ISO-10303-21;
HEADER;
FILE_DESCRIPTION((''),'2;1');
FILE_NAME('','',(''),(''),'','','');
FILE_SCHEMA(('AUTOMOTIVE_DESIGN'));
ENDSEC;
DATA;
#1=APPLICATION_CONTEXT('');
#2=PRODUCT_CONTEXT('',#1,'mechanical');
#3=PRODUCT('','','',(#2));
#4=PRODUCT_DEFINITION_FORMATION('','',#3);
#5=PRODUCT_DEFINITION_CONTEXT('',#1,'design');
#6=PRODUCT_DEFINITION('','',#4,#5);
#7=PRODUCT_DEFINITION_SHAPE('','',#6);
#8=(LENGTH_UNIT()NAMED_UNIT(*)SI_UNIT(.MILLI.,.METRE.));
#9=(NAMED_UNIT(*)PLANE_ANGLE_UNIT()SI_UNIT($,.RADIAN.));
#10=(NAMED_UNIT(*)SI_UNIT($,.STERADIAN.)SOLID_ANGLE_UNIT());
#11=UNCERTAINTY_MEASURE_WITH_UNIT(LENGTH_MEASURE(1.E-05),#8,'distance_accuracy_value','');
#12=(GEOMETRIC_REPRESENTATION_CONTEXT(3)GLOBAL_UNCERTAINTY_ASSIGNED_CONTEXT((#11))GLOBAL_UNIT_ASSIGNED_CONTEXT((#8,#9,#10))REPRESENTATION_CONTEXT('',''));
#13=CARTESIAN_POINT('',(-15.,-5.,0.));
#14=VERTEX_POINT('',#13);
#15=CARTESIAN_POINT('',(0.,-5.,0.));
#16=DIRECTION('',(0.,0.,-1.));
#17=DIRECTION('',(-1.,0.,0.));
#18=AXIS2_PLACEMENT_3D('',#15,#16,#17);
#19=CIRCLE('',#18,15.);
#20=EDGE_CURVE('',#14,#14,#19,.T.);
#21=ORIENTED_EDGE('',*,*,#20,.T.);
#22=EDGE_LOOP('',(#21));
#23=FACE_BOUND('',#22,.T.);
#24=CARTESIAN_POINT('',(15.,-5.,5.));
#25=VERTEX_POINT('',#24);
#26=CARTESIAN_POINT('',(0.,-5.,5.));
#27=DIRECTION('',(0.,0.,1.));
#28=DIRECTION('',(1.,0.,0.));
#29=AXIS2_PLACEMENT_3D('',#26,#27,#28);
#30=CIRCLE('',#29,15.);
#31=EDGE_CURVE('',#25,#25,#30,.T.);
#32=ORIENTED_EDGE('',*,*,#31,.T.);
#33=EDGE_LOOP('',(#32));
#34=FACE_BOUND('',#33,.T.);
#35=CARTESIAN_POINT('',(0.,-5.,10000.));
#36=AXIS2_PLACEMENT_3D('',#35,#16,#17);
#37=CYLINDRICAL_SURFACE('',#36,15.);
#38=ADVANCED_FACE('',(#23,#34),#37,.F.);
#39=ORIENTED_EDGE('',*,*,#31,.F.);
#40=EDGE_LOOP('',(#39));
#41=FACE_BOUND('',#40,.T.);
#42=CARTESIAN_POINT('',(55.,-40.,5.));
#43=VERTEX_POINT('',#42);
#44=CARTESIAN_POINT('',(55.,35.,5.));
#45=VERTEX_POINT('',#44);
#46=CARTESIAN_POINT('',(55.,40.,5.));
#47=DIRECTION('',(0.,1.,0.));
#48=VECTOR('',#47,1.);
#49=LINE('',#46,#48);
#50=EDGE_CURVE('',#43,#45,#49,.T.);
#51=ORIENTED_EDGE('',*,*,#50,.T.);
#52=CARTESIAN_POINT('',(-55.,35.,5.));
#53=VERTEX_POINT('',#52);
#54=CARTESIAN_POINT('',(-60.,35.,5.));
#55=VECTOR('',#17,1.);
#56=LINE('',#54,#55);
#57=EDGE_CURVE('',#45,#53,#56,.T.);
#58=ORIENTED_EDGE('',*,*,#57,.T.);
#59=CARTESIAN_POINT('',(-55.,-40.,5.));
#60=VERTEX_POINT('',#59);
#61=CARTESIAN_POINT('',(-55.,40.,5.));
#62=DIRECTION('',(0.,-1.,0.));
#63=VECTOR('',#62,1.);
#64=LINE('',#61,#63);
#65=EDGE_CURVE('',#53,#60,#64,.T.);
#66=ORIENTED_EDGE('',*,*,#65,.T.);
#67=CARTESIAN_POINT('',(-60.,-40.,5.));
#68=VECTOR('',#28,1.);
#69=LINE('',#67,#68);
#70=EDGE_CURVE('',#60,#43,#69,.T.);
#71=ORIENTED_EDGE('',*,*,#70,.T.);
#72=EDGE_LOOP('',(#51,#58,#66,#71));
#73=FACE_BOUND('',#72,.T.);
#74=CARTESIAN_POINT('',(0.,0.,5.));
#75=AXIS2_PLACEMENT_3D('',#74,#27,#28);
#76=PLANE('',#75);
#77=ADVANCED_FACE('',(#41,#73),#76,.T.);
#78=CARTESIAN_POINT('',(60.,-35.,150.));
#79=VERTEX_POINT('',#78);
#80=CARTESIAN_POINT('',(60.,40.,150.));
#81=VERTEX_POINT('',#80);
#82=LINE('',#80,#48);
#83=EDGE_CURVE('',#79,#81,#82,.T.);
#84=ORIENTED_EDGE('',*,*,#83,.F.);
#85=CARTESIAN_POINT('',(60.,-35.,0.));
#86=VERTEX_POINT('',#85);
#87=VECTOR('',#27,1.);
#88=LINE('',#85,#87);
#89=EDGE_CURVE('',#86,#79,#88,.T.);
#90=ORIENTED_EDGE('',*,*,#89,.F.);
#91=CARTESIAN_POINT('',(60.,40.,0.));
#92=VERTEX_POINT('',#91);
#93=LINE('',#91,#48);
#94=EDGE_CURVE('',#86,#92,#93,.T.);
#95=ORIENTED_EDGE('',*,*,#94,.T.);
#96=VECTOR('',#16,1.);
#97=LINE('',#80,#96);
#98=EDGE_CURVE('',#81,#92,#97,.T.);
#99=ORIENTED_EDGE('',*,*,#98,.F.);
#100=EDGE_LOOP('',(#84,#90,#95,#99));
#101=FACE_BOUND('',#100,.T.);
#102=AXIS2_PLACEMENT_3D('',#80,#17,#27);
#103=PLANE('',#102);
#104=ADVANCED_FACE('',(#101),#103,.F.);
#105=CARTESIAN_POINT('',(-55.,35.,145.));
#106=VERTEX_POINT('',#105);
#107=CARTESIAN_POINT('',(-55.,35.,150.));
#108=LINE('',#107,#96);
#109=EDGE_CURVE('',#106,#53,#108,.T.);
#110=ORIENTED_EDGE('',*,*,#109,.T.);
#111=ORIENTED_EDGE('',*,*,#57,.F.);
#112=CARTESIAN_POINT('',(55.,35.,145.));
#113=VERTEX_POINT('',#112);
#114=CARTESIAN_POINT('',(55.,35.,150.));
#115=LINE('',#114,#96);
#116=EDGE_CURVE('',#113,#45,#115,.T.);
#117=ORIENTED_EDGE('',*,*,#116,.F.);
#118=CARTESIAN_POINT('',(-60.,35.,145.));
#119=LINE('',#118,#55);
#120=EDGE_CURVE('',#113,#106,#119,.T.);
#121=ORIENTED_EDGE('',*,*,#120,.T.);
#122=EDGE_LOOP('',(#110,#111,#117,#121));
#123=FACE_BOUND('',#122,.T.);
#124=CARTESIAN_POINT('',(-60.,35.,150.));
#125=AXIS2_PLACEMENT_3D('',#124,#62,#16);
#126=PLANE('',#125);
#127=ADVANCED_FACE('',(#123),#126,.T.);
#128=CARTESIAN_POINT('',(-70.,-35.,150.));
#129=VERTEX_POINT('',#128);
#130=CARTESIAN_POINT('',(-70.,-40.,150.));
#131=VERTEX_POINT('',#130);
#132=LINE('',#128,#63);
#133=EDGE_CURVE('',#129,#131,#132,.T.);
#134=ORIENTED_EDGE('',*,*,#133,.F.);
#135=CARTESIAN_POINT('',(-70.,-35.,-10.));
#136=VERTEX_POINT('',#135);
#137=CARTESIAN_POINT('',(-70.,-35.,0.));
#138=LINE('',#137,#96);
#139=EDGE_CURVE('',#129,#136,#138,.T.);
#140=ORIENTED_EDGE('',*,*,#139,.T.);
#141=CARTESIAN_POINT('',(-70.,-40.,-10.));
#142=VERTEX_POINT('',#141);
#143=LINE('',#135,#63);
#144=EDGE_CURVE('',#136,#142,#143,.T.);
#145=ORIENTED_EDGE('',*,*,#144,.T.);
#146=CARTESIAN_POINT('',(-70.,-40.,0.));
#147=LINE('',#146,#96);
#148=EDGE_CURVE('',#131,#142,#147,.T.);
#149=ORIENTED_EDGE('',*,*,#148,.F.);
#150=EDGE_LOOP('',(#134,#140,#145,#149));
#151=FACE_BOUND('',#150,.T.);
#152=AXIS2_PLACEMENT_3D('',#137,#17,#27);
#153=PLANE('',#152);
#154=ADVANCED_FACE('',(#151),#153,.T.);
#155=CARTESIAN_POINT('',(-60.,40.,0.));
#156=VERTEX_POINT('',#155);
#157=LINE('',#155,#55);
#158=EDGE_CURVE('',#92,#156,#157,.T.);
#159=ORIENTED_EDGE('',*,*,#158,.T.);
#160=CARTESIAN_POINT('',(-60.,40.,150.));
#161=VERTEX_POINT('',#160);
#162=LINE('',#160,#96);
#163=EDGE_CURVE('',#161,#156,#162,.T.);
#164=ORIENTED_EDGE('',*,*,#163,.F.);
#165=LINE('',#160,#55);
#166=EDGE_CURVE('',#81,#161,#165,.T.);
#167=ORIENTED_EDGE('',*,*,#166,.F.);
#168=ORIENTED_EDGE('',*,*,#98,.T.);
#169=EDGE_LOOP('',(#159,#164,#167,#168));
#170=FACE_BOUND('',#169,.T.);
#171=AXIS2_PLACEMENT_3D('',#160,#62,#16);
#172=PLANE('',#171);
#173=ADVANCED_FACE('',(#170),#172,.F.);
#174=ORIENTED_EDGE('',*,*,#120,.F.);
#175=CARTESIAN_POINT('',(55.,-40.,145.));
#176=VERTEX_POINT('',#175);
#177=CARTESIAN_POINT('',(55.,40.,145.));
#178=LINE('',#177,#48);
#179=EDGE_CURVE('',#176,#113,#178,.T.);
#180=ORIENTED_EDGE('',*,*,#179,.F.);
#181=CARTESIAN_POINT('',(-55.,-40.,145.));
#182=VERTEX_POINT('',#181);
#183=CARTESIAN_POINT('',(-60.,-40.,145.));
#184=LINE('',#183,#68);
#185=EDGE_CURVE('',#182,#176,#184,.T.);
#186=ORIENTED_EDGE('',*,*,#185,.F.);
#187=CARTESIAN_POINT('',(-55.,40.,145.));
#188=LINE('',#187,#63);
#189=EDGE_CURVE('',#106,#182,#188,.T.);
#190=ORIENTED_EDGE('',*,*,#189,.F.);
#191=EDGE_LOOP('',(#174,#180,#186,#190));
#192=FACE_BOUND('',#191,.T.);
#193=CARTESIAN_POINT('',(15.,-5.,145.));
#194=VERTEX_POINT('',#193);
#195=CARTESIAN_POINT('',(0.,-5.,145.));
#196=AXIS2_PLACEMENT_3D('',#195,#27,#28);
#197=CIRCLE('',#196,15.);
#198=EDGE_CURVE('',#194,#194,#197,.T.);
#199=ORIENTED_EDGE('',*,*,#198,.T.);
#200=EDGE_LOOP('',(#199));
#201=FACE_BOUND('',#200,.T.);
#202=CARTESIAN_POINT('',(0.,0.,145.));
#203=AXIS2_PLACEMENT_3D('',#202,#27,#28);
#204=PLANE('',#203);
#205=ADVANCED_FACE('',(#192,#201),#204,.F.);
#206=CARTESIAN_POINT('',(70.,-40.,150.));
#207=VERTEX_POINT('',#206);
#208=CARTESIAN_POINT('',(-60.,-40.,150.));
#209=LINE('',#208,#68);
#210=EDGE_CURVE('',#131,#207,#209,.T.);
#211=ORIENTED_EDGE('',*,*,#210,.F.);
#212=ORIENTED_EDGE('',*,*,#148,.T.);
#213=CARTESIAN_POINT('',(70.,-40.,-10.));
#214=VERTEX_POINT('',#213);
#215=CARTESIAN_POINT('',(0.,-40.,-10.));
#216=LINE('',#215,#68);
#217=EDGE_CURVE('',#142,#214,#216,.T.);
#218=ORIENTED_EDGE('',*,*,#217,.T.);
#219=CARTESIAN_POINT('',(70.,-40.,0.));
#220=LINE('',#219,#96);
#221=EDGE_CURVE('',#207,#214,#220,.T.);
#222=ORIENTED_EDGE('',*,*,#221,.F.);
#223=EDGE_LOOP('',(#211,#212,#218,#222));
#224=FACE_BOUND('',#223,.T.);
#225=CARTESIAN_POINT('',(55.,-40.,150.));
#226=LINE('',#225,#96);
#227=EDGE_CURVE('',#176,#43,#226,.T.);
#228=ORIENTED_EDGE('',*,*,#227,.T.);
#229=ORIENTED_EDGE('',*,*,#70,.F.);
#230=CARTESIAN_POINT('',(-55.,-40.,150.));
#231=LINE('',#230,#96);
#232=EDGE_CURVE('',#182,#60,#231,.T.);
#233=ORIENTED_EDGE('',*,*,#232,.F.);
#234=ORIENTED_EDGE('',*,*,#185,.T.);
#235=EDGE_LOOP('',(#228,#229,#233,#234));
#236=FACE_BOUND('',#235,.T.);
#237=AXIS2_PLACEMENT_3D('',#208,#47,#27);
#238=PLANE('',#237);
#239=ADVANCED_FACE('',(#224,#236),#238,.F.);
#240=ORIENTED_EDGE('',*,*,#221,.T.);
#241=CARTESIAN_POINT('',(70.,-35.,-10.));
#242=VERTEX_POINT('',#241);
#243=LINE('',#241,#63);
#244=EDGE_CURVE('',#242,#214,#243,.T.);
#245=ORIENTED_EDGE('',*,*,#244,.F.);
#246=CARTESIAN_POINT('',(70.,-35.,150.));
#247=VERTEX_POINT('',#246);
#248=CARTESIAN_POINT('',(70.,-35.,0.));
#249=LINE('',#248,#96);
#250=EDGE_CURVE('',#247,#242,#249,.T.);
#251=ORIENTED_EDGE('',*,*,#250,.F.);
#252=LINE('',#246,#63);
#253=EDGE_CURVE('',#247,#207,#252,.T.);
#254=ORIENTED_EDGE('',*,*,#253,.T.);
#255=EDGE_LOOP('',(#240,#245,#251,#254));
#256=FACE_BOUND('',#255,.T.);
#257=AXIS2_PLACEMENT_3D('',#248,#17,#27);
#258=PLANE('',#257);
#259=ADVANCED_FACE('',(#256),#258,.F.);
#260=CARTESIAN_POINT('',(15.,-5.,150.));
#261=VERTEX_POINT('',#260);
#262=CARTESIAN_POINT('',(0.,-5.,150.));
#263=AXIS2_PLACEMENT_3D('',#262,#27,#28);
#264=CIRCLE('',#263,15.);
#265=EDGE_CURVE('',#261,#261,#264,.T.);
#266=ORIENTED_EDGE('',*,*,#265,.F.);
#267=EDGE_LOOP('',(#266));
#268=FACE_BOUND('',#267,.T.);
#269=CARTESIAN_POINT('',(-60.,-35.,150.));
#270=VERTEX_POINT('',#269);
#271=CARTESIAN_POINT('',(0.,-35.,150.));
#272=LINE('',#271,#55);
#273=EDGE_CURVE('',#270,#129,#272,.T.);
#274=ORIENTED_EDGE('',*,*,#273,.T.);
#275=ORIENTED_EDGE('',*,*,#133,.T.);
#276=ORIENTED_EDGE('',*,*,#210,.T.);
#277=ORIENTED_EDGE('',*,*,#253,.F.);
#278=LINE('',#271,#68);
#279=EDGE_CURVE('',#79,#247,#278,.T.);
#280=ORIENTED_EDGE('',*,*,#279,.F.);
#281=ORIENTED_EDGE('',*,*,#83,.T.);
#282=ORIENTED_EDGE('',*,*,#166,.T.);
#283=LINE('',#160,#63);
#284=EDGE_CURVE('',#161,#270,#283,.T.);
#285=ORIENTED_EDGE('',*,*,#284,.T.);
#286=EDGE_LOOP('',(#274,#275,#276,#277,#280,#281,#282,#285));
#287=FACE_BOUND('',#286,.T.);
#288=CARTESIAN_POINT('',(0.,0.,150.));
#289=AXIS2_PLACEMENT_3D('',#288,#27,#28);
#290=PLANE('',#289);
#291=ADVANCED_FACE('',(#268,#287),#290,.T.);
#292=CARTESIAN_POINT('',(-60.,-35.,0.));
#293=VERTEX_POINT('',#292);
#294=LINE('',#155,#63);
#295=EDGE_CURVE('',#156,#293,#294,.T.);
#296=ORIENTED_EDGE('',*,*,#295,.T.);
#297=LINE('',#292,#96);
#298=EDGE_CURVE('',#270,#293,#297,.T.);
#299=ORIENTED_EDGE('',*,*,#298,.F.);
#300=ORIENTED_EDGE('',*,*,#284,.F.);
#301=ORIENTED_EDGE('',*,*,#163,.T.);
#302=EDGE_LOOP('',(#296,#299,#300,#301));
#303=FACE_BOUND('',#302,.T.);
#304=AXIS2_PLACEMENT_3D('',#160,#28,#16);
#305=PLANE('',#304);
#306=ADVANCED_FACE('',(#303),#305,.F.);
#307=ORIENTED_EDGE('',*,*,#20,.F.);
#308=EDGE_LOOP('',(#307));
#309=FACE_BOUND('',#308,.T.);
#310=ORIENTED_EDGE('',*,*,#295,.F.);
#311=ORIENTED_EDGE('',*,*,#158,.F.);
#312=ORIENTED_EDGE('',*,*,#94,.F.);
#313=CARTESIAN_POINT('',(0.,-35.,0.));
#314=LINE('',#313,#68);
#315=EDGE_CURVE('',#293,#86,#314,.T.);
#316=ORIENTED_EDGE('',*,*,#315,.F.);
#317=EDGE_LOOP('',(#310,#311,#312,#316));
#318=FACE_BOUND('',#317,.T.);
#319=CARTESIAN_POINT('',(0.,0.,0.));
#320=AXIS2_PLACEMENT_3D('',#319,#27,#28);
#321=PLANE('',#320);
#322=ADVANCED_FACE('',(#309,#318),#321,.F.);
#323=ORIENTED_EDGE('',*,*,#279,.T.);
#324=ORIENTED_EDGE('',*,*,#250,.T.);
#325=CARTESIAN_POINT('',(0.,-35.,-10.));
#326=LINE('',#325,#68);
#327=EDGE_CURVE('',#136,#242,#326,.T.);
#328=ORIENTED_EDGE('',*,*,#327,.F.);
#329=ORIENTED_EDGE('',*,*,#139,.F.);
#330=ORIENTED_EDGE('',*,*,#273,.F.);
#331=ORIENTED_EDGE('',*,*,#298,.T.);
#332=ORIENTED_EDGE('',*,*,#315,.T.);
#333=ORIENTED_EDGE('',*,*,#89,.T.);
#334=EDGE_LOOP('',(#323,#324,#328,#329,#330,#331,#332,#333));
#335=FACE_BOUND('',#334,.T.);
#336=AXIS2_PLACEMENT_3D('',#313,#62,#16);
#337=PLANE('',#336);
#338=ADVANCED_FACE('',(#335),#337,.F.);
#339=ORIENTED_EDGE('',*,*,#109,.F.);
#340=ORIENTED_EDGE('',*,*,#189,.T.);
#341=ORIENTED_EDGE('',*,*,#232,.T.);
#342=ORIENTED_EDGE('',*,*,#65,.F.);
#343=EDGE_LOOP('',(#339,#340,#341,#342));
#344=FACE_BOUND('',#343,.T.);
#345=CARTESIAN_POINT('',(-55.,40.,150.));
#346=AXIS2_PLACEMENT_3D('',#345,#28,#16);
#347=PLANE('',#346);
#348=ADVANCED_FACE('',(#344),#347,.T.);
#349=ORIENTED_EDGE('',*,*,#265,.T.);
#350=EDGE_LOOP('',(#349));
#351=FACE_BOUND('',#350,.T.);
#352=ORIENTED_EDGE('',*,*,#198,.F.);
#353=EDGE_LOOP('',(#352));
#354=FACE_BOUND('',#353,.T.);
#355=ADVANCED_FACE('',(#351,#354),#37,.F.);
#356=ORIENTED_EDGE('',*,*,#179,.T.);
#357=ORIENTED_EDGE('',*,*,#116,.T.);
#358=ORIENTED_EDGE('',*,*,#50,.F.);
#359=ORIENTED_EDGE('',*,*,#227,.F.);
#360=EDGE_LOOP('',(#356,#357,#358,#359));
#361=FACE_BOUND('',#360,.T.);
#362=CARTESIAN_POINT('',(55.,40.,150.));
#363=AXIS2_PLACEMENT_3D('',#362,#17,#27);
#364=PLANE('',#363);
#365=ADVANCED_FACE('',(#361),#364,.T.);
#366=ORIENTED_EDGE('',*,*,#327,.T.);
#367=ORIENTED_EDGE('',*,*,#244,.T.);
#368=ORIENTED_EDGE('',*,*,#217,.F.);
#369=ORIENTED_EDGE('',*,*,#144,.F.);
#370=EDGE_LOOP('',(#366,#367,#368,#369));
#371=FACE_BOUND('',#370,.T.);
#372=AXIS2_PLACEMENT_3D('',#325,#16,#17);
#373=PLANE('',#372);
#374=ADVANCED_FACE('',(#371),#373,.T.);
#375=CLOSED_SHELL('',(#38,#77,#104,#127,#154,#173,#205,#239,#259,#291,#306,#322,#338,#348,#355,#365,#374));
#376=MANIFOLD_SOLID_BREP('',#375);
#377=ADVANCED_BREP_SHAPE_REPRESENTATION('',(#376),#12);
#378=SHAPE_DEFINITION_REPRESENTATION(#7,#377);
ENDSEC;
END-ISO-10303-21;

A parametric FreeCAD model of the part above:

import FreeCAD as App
import Part
import Sketcher

V = App.Vector


def faces_at(feature, points):
    """Names of the faces that lie closest to the given points."""
    faces = feature.Shape.Faces
    near = lambda p: min(range(len(faces)), key=lambda i: faces[i].distToShape(Part.Vertex(*p))[0])
    return sorted({f"Face{near(p) + 1}" for p in points})


def add_polygon(sketch, points):
    """Adds a closed chain of lines whose ends are joined by coincident constraints."""
    first, n = sketch.GeometryCount, len(points)
    for a, b in zip(points, points[1:] + points[:1]):
        sketch.addGeometry(Part.LineSegment(App.Vector(*a, 0), App.Vector(*b, 0)), False)
    for i in range(n):
        sketch.addConstraint(Sketcher.Constraint("Coincident", first + i, 2, first + (i + 1) % n, 1))

doc = App.newDocument("Part")
body = doc.addObject("PartDesign::Body", "Body")

sketch1 = doc.addObject("Sketcher::SketchObject", "Sketch")
body.addObject(sketch1)
sketch1.AttachmentSupport = (doc.XY_Plane, [""])
sketch1.MapMode = "FlatFace"
add_polygon(sketch1, [(-60, 40), (-60, -40), (60, -40), (60, 40)])
sketch1.addConstraint([
    Sketcher.Constraint("Vertical", 0),
    Sketcher.Constraint("Horizontal", 1),
    Sketcher.Constraint("Vertical", 2),
    Sketcher.Constraint("Horizontal", 3),
    Sketcher.Constraint("Symmetric", 0, 2, 2, 2, -1, 1),
    Sketcher.Constraint("DistanceX", 1, 1, 1, 2, 120.0),
    Sketcher.Constraint("DistanceY", 0, 2, 0, 1, 80.0),
])
pad1 = doc.addObject("PartDesign::Pad", "Pad")
body.addObject(pad1)
pad1.Profile = sketch1
pad1.Length = 150
doc.recompute()

thickness = doc.addObject("PartDesign::Thickness", "Thickness")
body.addObject(thickness)
thickness.Base = (pad1, faces_at(pad1, [(0, -40, 75)]))
thickness.Value = 5
thickness.Reversed = True
thickness.Join = "Intersection"

sketch2 = doc.addObject("Sketcher::SketchObject", "Sketch001")
body.addObject(sketch2)
sketch2.AttachmentSupport = (doc.XZ_Plane, [""])
sketch2.MapMode = "FlatFace"
sketch2.AttachmentOffset = App.Placement(V(0, 0, 40), App.Rotation())
add_polygon(sketch2, [(-60, 150), (-70, 150), (-70, -10), (70, -10), (70, 150), (60, 150), (60, 0), (-60, 0)])
sketch2.addConstraint([
    Sketcher.Constraint("Horizontal", 0),
    Sketcher.Constraint("Vertical", 1),
    Sketcher.Constraint("Horizontal", 2),
    Sketcher.Constraint("Vertical", 3),
    Sketcher.Constraint("Horizontal", 4),
    Sketcher.Constraint("Vertical", 5),
    Sketcher.Constraint("Horizontal", 6),
    Sketcher.Constraint("Vertical", 7),
    Sketcher.Constraint("Symmetric", 5, 2, 6, 2, -1, 1),
    Sketcher.Constraint("Symmetric", 0, 2, 3, 2, -2),
    Sketcher.Constraint("DistanceX", 0, 2, 0, 1, 10.0),
    Sketcher.Constraint("DistanceX", 2, 1, 2, 2, 140.0),
    Sketcher.Constraint("DistanceY", 1, 2, 1, 1, 160.0),
    Sketcher.Constraint("DistanceY", 5, 2, 5, 1, 150.0),
])
pad2 = doc.addObject("PartDesign::Pad", "Pad001")
body.addObject(pad2)
pad2.Profile = sketch2
pad2.Length = 5
pad2.Reversed = True

sketch3 = doc.addObject("Sketcher::SketchObject", "Sketch002")
body.addObject(sketch3)
sketch3.AttachmentSupport = (doc.XY_Plane, [""])
sketch3.MapMode = "FlatFace"
sketch3.addGeometry(Part.Circle(V(0, -5, 0), V(0, 0, 1), 15), False)
sketch3.addConstraint([
    Sketcher.Constraint("PointOnObject", 0, 3, -2),
    Sketcher.Constraint("Diameter", 0, 30.0),
    Sketcher.Constraint("DistanceY", 0, 3, -1, 1, 5.0),
])
pocket1 = doc.addObject("PartDesign::Pocket", "Pocket")
body.addObject(pocket1)
pocket1.Profile = sketch3
pocket1.Length = 10000
pocket1.Reversed = True

doc.recompute()
